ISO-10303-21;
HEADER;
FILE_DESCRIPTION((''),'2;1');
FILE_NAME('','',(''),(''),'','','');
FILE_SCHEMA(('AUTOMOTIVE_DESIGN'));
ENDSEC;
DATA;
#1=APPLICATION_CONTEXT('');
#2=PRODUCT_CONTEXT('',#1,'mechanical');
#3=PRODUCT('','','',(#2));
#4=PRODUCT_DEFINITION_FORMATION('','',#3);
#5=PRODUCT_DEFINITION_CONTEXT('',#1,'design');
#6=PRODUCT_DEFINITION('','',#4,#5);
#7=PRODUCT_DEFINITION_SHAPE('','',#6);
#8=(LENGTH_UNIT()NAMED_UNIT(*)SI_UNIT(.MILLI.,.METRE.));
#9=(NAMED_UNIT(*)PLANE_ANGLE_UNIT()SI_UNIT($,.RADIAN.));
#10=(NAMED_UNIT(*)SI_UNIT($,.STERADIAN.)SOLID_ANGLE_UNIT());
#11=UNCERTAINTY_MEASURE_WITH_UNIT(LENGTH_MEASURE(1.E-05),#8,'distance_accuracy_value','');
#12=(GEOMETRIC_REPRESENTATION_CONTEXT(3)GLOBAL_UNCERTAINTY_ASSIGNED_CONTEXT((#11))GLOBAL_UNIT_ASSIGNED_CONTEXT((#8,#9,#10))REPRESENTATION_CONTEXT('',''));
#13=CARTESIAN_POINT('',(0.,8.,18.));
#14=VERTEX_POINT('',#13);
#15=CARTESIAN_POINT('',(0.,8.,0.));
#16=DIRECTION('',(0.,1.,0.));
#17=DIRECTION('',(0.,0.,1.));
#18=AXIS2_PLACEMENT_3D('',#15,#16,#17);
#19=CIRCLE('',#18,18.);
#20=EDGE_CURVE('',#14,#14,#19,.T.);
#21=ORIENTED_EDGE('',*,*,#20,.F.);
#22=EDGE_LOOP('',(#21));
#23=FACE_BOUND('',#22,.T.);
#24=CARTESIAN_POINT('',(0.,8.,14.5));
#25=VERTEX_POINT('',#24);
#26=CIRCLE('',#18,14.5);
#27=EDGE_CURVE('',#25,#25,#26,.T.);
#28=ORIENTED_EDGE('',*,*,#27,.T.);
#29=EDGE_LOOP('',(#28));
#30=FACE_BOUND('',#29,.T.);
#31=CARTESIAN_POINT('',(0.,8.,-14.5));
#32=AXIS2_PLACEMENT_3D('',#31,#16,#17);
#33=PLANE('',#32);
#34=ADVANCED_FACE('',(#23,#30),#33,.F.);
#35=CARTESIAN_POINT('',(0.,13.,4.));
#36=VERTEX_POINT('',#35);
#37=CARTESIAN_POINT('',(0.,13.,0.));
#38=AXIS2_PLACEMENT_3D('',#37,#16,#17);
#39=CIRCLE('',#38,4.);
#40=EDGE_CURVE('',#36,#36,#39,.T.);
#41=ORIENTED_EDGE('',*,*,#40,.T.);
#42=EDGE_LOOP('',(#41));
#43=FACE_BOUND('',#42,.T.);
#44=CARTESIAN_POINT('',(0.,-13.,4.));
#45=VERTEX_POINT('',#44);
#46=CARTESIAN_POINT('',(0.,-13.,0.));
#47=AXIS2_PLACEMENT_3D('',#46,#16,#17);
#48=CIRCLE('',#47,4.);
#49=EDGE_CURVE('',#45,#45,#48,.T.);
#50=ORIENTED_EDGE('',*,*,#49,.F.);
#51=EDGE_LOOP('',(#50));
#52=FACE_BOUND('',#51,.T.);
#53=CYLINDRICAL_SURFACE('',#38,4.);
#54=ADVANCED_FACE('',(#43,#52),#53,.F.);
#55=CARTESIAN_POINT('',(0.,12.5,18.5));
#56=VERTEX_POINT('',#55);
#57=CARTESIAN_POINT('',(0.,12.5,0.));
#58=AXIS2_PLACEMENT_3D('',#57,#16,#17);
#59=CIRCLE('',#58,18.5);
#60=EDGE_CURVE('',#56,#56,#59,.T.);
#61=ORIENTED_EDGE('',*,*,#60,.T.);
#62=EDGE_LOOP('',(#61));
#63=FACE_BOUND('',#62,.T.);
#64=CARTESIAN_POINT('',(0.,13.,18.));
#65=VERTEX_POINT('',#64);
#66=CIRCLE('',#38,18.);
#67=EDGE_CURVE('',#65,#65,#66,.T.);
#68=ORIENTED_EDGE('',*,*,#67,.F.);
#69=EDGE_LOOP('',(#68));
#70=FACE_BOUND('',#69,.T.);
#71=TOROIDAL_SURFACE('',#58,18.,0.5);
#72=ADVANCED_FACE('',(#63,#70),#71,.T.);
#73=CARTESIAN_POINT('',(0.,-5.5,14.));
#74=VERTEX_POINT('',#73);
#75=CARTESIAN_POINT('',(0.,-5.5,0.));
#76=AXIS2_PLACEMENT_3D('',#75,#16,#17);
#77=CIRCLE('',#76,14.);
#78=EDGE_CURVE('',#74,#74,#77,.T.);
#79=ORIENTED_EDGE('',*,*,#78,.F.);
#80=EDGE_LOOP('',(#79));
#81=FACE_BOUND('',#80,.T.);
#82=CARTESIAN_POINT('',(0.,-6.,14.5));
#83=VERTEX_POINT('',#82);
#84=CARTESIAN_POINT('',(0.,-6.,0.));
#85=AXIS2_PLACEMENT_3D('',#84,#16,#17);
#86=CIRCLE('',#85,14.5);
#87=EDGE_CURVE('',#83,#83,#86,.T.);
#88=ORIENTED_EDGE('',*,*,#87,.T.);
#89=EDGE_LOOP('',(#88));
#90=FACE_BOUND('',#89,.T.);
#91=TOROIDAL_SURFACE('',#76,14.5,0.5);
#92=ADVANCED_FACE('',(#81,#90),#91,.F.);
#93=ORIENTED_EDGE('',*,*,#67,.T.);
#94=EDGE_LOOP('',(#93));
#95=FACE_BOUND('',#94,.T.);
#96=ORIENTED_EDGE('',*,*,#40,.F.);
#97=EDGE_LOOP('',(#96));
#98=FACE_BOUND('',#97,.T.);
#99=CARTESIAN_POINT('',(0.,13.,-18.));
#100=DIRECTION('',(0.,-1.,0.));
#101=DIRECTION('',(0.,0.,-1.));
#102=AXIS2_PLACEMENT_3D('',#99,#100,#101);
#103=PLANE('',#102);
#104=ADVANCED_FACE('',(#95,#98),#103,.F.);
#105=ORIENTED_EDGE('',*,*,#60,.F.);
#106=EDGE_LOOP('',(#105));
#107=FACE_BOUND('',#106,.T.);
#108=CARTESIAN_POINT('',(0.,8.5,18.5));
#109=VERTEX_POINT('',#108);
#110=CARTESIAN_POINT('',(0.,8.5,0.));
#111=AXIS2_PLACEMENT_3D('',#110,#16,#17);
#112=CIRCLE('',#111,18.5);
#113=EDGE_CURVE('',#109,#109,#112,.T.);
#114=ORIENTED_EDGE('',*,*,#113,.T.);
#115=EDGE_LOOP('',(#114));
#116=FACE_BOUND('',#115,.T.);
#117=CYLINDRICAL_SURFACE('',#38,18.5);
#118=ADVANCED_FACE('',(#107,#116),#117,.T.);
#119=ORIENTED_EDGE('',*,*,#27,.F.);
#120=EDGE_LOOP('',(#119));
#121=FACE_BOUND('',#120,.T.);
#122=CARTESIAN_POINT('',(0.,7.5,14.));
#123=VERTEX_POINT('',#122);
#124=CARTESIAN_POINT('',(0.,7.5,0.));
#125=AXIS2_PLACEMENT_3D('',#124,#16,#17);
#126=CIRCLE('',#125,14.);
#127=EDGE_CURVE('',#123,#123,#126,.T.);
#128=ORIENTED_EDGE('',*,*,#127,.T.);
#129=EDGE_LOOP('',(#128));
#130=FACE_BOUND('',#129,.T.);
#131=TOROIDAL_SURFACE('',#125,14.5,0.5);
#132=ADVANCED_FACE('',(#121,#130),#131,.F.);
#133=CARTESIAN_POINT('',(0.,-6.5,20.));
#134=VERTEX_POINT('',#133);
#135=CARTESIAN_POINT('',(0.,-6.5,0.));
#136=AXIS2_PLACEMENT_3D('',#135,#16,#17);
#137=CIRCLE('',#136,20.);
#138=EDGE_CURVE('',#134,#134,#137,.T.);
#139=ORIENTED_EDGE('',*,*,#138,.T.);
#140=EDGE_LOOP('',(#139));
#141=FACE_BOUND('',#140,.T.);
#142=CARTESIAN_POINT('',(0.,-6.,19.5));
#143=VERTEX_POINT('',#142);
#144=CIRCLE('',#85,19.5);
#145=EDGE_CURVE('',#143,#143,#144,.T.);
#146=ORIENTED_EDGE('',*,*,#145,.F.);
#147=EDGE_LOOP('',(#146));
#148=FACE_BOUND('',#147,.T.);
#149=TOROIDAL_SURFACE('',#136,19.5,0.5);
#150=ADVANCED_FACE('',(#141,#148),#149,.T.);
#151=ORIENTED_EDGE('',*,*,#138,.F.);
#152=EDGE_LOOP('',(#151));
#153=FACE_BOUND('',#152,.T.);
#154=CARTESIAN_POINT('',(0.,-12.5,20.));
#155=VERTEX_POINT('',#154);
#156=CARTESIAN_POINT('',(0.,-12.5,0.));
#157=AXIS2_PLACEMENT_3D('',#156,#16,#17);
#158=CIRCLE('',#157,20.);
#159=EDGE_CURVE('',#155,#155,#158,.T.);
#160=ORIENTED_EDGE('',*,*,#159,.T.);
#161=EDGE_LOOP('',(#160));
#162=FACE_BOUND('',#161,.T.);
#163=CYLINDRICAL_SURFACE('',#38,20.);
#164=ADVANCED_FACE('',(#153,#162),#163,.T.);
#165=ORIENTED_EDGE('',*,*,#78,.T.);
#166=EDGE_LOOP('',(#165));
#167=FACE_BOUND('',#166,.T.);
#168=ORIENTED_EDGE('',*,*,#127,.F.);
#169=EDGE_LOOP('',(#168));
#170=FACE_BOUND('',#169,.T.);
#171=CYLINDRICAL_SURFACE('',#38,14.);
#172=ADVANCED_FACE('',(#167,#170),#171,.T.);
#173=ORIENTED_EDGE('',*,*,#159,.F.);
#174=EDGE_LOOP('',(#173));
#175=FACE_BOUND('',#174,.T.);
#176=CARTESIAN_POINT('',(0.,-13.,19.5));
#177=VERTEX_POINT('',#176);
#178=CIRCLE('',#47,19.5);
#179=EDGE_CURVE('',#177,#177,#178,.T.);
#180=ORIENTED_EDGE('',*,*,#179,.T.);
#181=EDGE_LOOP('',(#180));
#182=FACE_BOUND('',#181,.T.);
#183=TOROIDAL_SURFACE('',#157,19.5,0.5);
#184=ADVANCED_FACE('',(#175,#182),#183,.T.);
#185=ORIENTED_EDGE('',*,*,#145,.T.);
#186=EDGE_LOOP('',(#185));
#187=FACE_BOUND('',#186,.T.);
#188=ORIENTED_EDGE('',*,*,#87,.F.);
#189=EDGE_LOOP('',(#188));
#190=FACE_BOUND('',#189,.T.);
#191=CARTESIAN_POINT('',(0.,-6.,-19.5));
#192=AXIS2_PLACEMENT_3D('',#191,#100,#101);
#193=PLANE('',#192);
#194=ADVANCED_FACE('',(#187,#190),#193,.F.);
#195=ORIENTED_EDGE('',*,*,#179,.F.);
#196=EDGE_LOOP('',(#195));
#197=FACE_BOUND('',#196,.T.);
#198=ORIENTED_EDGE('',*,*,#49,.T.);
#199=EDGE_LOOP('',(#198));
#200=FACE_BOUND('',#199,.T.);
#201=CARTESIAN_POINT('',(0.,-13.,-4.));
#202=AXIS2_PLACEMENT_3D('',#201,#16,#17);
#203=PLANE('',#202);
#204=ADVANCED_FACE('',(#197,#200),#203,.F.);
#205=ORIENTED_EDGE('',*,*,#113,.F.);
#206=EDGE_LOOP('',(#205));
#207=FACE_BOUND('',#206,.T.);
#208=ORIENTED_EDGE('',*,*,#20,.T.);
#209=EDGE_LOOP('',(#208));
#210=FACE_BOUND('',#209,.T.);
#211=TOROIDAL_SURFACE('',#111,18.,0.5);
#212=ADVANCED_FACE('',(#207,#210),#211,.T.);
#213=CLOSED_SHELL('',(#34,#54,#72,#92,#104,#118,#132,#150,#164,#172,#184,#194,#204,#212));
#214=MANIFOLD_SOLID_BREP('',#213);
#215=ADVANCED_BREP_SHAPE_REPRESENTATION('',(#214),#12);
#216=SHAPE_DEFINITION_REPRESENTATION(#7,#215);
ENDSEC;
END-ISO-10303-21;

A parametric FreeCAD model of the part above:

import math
import FreeCAD as App
import Part
import Sketcher
from FreeCAD import Vector

doc = App.newDocument("Part")
params = doc.addObject("Spreadsheet::Sheet", "Params")
for row, (alias, value) in enumerate([
    ("sketch1_radius", "0.5 mm"),
    ("sketch1_width", "6 mm"),
    ("sketch1_width2", "13 mm"),
    ("sketch1_width3", "4 mm"),
    ("sketch1_height", "5 mm"),
    ("revolution_angle", "360 deg"),
], start=1):
    params.set(f"A{row}", alias)
    params.set(f"B{row}", "=" + value)
    params.setAlias(f"B{row}", alias)

body = doc.addObject("PartDesign::Body", "Body")

# Sketch on YZ plane
sketch1 = body.newObject("Sketcher::SketchObject", "Sketch")
sketch1.AttachmentSupport = (doc.getObject("YZ_Plane"), [""])
sketch1.MapMode = "FlatFace"
sketch1.addGeometry(Part.LineSegment(Vector(-13, -4, 0), Vector(-13, -19.5, 0)), False)
sketch1.addGeometry(Part.ArcOfCircle(Part.Circle(Vector(-12.5, -19.5, 0), Vector(0, 0, 1), 0.5), math.radians(180), math.radians(270)), False)
sketch1.addGeometry(Part.LineSegment(Vector(-12.5, -20, 0), Vector(-6.5, -20, 0)), False)
sketch1.addGeometry(Part.ArcOfCircle(Part.Circle(Vector(-6.5, -19.5, 0), Vector(0, 0, 1), 0.5), math.radians(-90), math.radians(0)), False)
sketch1.addGeometry(Part.LineSegment(Vector(-6, -19.5, 0), Vector(-6, -14.5, 0)), False)
sketch1.addGeometry(Part.ArcOfCircle(Part.Circle(Vector(-5.5, -14.5, 0), Vector(0, 0, 1), 0.5), math.radians(90), math.radians(180)), False)
sketch1.addGeometry(Part.LineSegment(Vector(-5.5, -14, 0), Vector(7.5, -14, 0)), False)
sketch1.addGeometry(Part.ArcOfCircle(Part.Circle(Vector(7.5, -14.5, 0), Vector(0, 0, 1), 0.5), math.radians(0), math.radians(90)), False)
sketch1.addGeometry(Part.LineSegment(Vector(8, -14.5, 0), Vector(8, -18, 0)), False)
sketch1.addGeometry(Part.ArcOfCircle(Part.Circle(Vector(8.5, -18, 0), Vector(0, 0, 1), 0.5), math.radians(180), math.radians(270)), False)
sketch1.addGeometry(Part.LineSegment(Vector(8.5, -18.5, 0), Vector(12.5, -18.5, 0)), False)
sketch1.addGeometry(Part.ArcOfCircle(Part.Circle(Vector(12.5, -18, 0), Vector(0, 0, 1), 0.5), math.radians(-90), math.radians(0)), False)
sketch1.addGeometry(Part.LineSegment(Vector(13, -18, 0), Vector(13, -4, 0)), False)
sketch1.addGeometry(Part.LineSegment(Vector(13, -4, 0), Vector(-13, -4, 0)), False)
sketch1.addConstraint(Sketcher.Constraint("Tangent", 0, 2, 1, 1))
sketch1.addConstraint(Sketcher.Constraint("Tangent", 1, 2, 2, 1))
sketch1.addConstraint(Sketcher.Constraint("Tangent", 2, 2, 3, 1))
sketch1.addConstraint(Sketcher.Constraint("Tangent", 3, 2, 4, 1))
sketch1.addConstraint(Sketcher.Constraint("Tangent", 4, 2, 5, 2))
sketch1.addConstraint(Sketcher.Constraint("Tangent", 5, 1, 6, 1))
sketch1.addConstraint(Sketcher.Constraint("Tangent", 6, 2, 7, 2))
sketch1.addConstraint(Sketcher.Constraint("Tangent", 7, 1, 8, 1))
sketch1.addConstraint(Sketcher.Constraint("Tangent", 8, 2, 9, 1))
sketch1.addConstraint(Sketcher.Constraint("Tangent", 9, 2, 10, 1))
sketch1.addConstraint(Sketcher.Constraint("Tangent", 10, 2, 11, 1))
sketch1.addConstraint(Sketcher.Constraint("Tangent", 11, 2, 12, 1))
sketch1.addConstraint(Sketcher.Constraint("Coincident", 12, 2, 13, 1))
sketch1.addConstraint(Sketcher.Constraint("Coincident", 13, 2, 0, 1))
sketch1.addConstraint(Sketcher.Constraint("Vertical", 0))
sketch1.addConstraint(Sketcher.Constraint("Horizontal", 2))
sketch1.addConstraint(Sketcher.Constraint("Vertical", 4))
sketch1.addConstraint(Sketcher.Constraint("Horizontal", 6))
sketch1.addConstraint(Sketcher.Constraint("Vertical", 8))
sketch1.addConstraint(Sketcher.Constraint("Horizontal", 10))
sketch1.addConstraint(Sketcher.Constraint("Vertical", 12))
sketch1.addConstraint(Sketcher.Constraint("Horizontal", 13))
sketch1.addConstraint(Sketcher.Constraint("Equal", 1, 3))
sketch1.addConstraint(Sketcher.Constraint("Equal", 3, 5))
sketch1.addConstraint(Sketcher.Constraint("Equal", 5, 7))
sketch1.addConstraint(Sketcher.Constraint("Equal", 7, 9))
sketch1.addConstraint(Sketcher.Constraint("Equal", 9, 11))
sketch1.addConstraint(Sketcher.Constraint("Radius", 1, 0.5))
sketch1.addConstraint(Sketcher.Constraint("DistanceX", 2, 1, 2, 2, 6.0))
sketch1.addConstraint(Sketcher.Constraint("DistanceX", 6, 1, 6, 2, 13.0))
sketch1.addConstraint(Sketcher.Constraint("DistanceX", 10, 1, 10, 2, 4.0))
sketch1.addConstraint(Sketcher.Constraint("DistanceY", 4, 1, 4, 2, 5.0))
sketch1.addConstraint(Sketcher.Constraint("DistanceY", 12, 1, 12, 2, 14.0))
sketch1.addConstraint(Sketcher.Constraint("DistanceY", 0, 2, 0, 1, 15.5))
sketch1.addConstraint(Sketcher.Constraint("DistanceY", 9, 3, -1, 1, 18.0))
sketch1.addConstraint(Sketcher.Constraint("DistanceX", 0, 2, -1, 1, 13.0))
sketch1.setExpression("Constraints[27]", "Params.sketch1_radius")
sketch1.setExpression("Constraints[28]", "Params.sketch1_width")
sketch1.setExpression("Constraints[29]", "Params.sketch1_width2")
sketch1.setExpression("Constraints[30]", "Params.sketch1_width3")
sketch1.setExpression("Constraints[31]", "Params.sketch1_height")
revolution = body.newObject("PartDesign::Revolution", "Revolution")
revolution.Profile = sketch1
revolution.ReferenceAxis = (sketch1, ["H_Axis"])
revolution.setExpression("Angle", "Params.revolution_angle")

doc.recompute()
